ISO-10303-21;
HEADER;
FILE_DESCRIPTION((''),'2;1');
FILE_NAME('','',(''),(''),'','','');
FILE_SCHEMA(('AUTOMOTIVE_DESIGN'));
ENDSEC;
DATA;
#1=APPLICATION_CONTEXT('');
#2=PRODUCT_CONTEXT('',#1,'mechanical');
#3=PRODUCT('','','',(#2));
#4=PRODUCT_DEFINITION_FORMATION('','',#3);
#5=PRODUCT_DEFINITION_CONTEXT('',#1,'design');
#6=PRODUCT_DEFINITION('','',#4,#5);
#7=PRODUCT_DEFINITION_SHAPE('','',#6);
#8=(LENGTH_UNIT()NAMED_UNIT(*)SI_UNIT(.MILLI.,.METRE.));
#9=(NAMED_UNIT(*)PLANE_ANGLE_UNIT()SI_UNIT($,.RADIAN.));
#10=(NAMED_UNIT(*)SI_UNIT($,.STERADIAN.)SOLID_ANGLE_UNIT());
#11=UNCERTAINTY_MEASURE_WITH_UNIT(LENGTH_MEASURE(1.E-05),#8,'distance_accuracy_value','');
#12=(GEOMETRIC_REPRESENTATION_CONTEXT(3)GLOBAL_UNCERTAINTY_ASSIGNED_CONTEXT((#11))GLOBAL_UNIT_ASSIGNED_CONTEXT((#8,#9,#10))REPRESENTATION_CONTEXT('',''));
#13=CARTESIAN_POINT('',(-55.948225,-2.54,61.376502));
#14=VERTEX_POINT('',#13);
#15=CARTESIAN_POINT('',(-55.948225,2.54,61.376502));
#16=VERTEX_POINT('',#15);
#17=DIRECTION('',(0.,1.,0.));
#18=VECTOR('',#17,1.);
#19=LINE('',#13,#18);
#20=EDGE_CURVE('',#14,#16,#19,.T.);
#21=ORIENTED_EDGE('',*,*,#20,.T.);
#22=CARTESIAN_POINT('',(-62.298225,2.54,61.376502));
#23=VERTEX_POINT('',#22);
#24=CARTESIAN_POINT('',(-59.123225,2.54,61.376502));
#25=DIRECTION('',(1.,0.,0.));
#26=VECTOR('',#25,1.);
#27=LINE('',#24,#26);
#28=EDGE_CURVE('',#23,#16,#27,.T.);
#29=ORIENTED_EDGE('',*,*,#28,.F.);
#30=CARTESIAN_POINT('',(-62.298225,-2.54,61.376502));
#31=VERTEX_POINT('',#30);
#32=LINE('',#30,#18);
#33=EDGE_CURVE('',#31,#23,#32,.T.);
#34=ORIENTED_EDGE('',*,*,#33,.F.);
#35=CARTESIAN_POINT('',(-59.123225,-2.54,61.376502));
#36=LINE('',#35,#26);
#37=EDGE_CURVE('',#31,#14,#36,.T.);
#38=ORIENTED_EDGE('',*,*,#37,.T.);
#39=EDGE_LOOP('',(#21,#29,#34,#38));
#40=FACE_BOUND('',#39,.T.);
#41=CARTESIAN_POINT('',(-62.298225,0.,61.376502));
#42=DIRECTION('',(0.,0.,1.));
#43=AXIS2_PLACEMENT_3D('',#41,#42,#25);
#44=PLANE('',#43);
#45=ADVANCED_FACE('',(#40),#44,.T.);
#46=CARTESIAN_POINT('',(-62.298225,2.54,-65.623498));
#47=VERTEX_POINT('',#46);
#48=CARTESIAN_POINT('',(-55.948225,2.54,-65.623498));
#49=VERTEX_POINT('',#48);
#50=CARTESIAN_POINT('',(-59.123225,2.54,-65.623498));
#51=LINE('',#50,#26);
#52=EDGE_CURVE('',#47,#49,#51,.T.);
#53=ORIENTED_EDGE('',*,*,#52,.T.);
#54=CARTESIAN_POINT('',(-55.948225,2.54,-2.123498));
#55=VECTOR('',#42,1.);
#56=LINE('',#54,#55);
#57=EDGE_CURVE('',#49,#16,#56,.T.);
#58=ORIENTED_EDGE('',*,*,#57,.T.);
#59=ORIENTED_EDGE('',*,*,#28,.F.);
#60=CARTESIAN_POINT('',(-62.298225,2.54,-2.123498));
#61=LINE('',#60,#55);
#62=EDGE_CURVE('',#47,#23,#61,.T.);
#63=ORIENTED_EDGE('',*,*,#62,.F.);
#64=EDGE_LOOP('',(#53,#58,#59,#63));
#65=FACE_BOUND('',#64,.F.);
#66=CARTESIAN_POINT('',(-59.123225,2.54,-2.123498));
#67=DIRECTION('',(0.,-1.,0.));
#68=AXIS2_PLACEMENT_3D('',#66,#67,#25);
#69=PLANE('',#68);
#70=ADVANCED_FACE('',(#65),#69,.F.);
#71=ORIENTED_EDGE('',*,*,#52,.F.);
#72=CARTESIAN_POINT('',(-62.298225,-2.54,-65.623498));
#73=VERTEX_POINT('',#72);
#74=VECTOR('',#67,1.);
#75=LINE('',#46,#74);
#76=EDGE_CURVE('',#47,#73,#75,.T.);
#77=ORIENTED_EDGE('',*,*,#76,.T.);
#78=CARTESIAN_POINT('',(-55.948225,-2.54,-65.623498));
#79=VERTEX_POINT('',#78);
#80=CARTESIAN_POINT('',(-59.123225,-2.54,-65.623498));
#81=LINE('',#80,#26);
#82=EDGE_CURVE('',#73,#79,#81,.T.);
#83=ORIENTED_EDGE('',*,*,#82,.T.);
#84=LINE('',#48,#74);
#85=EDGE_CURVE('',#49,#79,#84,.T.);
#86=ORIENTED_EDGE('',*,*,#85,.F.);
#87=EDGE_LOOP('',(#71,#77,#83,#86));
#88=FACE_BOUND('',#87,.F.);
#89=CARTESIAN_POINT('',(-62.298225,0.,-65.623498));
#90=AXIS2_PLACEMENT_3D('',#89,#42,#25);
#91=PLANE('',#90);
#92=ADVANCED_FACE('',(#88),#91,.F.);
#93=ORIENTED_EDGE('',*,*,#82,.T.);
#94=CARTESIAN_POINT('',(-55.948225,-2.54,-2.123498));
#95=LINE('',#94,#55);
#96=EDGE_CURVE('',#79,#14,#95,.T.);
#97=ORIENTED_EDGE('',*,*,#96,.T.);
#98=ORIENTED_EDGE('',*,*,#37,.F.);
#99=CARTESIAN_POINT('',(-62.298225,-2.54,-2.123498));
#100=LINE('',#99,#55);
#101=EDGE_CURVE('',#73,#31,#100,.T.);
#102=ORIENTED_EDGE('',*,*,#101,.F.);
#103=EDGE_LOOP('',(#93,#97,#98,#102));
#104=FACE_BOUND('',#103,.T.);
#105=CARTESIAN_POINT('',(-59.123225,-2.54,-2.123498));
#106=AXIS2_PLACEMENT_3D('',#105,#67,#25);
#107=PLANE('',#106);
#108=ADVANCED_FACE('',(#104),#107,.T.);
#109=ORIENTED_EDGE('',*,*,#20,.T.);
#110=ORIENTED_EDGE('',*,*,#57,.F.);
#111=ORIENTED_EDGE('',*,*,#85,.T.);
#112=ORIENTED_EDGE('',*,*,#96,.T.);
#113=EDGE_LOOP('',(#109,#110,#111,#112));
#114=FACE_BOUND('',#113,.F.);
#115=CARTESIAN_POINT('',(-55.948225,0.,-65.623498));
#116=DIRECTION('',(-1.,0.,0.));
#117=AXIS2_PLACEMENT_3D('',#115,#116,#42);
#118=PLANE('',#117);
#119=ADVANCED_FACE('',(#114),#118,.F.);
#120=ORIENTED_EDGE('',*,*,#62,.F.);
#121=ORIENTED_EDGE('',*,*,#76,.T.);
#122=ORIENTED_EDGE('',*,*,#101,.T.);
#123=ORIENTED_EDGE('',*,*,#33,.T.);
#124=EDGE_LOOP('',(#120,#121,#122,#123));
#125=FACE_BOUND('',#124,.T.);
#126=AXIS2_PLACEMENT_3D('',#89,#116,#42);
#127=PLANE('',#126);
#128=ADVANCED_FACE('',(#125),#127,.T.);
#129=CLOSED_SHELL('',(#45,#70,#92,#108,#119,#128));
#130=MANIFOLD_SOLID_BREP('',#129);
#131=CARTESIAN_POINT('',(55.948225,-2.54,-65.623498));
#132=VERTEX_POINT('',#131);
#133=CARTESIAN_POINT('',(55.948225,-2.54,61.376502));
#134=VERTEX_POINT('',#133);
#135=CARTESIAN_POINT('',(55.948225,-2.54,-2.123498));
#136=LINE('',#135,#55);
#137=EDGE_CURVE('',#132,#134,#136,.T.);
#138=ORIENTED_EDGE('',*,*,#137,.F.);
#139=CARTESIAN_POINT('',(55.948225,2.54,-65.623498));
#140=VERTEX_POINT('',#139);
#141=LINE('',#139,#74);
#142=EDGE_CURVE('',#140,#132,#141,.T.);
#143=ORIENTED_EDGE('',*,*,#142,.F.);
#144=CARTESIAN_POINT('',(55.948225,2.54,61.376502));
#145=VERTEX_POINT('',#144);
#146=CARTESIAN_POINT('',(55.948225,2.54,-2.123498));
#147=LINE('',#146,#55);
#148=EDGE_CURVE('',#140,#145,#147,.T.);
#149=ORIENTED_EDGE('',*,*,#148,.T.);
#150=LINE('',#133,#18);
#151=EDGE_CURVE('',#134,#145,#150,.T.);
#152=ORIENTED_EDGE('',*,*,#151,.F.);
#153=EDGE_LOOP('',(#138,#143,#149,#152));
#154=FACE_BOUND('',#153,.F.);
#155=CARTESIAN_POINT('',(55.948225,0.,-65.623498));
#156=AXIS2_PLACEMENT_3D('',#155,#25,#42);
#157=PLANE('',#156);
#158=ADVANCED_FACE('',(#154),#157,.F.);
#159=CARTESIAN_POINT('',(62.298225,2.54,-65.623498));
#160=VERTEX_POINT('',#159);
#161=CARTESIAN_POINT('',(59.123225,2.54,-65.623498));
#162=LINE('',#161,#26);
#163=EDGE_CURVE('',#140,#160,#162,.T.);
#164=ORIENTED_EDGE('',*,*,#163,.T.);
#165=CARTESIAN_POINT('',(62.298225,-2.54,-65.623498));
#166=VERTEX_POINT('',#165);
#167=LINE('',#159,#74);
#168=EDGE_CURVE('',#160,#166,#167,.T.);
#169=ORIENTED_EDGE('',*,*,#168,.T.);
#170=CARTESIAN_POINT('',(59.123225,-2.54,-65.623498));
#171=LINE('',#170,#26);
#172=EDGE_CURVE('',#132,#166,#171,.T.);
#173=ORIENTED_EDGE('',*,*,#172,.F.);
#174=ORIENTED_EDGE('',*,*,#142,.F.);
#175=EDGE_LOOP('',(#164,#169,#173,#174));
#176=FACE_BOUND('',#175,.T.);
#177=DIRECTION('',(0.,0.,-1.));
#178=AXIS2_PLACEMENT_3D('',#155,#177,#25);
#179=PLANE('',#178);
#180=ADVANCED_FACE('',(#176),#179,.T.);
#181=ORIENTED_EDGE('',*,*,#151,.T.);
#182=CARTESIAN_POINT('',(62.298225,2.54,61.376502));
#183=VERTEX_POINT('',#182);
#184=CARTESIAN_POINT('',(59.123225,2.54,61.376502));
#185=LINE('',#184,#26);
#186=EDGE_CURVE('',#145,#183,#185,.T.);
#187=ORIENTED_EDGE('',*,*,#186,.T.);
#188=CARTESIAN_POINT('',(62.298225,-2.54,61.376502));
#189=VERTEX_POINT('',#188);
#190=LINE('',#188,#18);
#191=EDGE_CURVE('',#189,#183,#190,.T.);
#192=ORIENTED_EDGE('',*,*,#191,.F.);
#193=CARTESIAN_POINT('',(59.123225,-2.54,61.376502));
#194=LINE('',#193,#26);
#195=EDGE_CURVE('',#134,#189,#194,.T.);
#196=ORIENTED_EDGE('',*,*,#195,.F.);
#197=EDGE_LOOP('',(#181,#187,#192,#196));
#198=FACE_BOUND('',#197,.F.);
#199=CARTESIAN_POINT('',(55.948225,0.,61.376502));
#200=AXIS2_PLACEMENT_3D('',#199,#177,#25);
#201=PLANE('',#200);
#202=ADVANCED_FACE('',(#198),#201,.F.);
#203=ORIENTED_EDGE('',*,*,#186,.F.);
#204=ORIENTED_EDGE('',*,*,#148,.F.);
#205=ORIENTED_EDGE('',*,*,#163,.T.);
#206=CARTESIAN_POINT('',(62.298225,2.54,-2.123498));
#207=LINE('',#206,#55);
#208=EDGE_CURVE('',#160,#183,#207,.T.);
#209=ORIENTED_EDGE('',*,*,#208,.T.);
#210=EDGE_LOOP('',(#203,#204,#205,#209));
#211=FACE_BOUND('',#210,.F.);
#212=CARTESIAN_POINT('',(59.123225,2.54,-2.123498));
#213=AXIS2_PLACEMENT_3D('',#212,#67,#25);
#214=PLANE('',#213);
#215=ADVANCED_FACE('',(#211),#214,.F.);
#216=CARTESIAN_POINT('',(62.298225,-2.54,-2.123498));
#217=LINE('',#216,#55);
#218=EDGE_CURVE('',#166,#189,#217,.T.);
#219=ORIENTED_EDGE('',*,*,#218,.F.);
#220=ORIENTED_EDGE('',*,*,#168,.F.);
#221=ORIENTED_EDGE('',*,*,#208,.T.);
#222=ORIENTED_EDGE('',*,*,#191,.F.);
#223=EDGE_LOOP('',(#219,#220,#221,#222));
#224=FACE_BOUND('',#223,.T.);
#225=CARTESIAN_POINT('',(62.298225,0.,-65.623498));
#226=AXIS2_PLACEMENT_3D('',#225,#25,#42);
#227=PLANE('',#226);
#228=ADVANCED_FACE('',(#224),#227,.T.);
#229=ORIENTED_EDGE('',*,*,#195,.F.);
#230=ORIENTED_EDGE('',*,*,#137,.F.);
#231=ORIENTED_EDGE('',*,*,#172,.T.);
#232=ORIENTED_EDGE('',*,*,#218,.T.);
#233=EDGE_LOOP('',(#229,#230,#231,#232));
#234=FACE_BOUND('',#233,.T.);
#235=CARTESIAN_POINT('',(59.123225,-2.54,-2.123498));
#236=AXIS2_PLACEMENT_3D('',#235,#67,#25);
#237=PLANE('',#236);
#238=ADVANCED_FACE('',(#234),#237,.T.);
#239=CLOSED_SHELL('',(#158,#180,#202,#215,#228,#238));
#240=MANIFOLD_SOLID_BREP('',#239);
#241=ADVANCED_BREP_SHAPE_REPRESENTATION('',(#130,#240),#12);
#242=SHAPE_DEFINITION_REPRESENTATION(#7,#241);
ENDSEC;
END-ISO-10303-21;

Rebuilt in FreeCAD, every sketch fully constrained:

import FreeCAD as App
import Part
import Sketcher
Q = App.Units.Quantity

doc = App.newDocument("Part")
body = doc.addObject("PartDesign::Body", "Body")
body.AllowCompound = True

# Sketch on XZ plane
sketch1 = body.newObject("Sketcher::SketchObject", "Sketch")
sketch1.AttachmentSupport = (doc.getObject("XZ_Plane"), [""])
sketch1.MapMode = "FlatFace"
sketch1.addGeometry([
    Part.LineSegment(App.Vector(-62, 61, 0), App.Vector(-62, -66, 0)),  # 0
    Part.LineSegment(App.Vector(-62, -66, 0), App.Vector(-56, -66, 0)),  # 1
    Part.LineSegment(App.Vector(-56, -66, 0), App.Vector(-56, 61, 0)),  # 2
    Part.LineSegment(App.Vector(-56, 61, 0), App.Vector(-62, 61, 0)),  # 3
    Part.LineSegment(App.Vector(56, 61, 0), App.Vector(56, -66, 0)),  # 4
    Part.LineSegment(App.Vector(56, -66, 0), App.Vector(62, -66, 0)),  # 5
    Part.LineSegment(App.Vector(62, -66, 0), App.Vector(62, 61, 0)),  # 6
    Part.LineSegment(App.Vector(62, 61, 0), App.Vector(56, 61, 0)),  # 7
], False)
sketch1.addConstraint([
    Sketcher.Constraint("Coincident", 0, 2, 1, 1),
    Sketcher.Constraint("Coincident", 1, 2, 2, 1),
    Sketcher.Constraint("Coincident", 2, 2, 3, 1),
    Sketcher.Constraint("Coincident", 3, 2, 0, 1),
    Sketcher.Constraint("Coincident", 4, 2, 5, 1),
    Sketcher.Constraint("Coincident", 5, 2, 6, 1),
    Sketcher.Constraint("Coincident", 6, 2, 7, 1),
    Sketcher.Constraint("Coincident", 7, 2, 4, 1),
    Sketcher.Constraint("Vertical", 0),
    Sketcher.Constraint("Horizontal", 1),
    Sketcher.Constraint("Vertical", 2),
    Sketcher.Constraint("Horizontal", 3),
    Sketcher.Constraint("Vertical", 4),
    Sketcher.Constraint("Horizontal", 5),
    Sketcher.Constraint("Vertical", 6),
    Sketcher.Constraint("Horizontal", 7),
    Sketcher.Constraint("Symmetric", 1, 2, 4, 2, -2),
    Sketcher.Constraint("Symmetric", 3, 2, 6, 2, -2),
    Sketcher.Constraint("DistanceY", 0, 2, 0, 1, Q("5 in")),
    Sketcher.Constraint("DistanceX", 1, 1, 1, 2, Q("0.25 in")),
    Sketcher.Constraint("DistanceX", 1, 2, 4, 2, Q("111.89645 mm")),
    Sketcher.Constraint("DistanceY", 0, 2, -1, 1, Q("65.623498 mm")),
])
pad1 = body.newObject("PartDesign::Pad", "Pad")
pad1.Profile = sketch1
pad1.Length = Q("0.2 in")
pad1.Midplane = True

doc.recompute()
